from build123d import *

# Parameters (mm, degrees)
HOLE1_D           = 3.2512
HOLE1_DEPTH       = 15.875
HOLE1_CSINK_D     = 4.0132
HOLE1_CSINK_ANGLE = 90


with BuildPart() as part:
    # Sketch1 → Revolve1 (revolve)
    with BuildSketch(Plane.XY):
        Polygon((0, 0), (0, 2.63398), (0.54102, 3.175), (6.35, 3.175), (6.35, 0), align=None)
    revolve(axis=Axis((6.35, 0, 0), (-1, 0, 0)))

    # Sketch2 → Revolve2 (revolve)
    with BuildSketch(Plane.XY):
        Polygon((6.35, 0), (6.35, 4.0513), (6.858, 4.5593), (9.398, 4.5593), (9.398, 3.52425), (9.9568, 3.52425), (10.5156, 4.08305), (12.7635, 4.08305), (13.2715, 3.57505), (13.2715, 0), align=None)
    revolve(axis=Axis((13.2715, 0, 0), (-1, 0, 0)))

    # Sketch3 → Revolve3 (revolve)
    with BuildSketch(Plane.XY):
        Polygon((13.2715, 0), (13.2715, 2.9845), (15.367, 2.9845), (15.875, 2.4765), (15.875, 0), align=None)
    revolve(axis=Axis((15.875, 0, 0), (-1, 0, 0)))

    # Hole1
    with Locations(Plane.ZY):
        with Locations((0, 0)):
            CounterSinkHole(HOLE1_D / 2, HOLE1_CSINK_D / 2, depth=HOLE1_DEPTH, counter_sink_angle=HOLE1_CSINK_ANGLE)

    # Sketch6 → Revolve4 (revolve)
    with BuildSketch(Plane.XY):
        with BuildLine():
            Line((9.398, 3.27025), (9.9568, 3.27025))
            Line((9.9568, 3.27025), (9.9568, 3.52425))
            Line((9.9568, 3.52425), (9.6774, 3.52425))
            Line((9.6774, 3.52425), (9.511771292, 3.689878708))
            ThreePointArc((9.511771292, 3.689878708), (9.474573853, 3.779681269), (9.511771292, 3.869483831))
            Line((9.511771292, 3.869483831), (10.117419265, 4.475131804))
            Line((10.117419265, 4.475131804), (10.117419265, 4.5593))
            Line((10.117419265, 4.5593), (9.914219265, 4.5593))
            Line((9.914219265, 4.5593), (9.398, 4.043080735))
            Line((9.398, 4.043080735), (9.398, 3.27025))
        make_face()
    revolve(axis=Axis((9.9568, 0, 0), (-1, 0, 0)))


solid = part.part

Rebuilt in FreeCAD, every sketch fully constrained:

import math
import FreeCAD as App
import Part
import Sketcher
from FreeCAD import Vector
Q = App.Units.Quantity

doc = App.newDocument("Part")
body = doc.addObject("PartDesign::Body", "Body")

sketch1 = body.newObject("Sketcher::SketchObject", "Sketch")
sketch1.AttachmentSupport = (doc.getObject("XY_Plane"), [""])
sketch1.MapMode = "FlatFace"
sketch1.addGeometry(Part.LineSegment(Vector(0, 2.63398, 0), Vector(0, 0, 0)), False)
sketch1.addGeometry(Part.LineSegment(Vector(0, 0, 0), Vector(6.35, 0, 0)), False)
sketch1.addGeometry(Part.LineSegment(Vector(6.35, 0, 0), Vector(6.35, 3.175, 0)), False)
sketch1.addGeometry(Part.LineSegment(Vector(6.35, 3.175, 0), Vector(0.54102, 3.175, 0)), False)
sketch1.addGeometry(Part.LineSegment(Vector(0.54102, 3.175, 0), Vector(0, 2.63398, 0)), False)
sketch1.addConstraint(Sketcher.Constraint("Coincident", 0, 2, 1, 1))
sketch1.addConstraint(Sketcher.Constraint("Coincident", 1, 2, 2, 1))
sketch1.addConstraint(Sketcher.Constraint("Coincident", 2, 2, 3, 1))
sketch1.addConstraint(Sketcher.Constraint("Coincident", 3, 2, 4, 1))
sketch1.addConstraint(Sketcher.Constraint("Coincident", 4, 2, 0, 1))
sketch1.addConstraint(Sketcher.Constraint("Vertical", 0))
sketch1.addConstraint(Sketcher.Constraint("Horizontal", 1))
sketch1.addConstraint(Sketcher.Constraint("Vertical", 2))
sketch1.addConstraint(Sketcher.Constraint("Horizontal", 3))
sketch1.addConstraint(Sketcher.Constraint("Coincident", 0, 2, -1, 1))
sketch1.addConstraint(Sketcher.Constraint("Angle", 4, Q("-135 deg")))
sketch1.addConstraint(Sketcher.Constraint("DistanceX", 1, 1, 1, 2, Q("0.25 in")))
sketch1.addConstraint(Sketcher.Constraint("DistanceY", 2, 1, 2, 2, Q("0.125 in")))
sketch1.addConstraint(Sketcher.Constraint("DistanceX", 3, 2, 3, 1, Q("0.2287 in")))
revolution = body.newObject("PartDesign::Revolution", "Revolution")
revolution.Profile = sketch1
revolution.ReferenceAxis = (sketch1, ["H_Axis"])
revolution.Angle = 360

sketch2 = body.newObject("Sketcher::SketchObject", "Sketch001")
sketch2.AttachmentSupport = (doc.getObject("XY_Plane"), [""])
sketch2.MapMode = "FlatFace"
sketch2.addGeometry(Part.LineSegment(Vector(6.35, 4.0513, 0), Vector(6.35, 0, 0)), False)
sketch2.addGeometry(Part.LineSegment(Vector(6.35, 0, 0), Vector(13.2715, 0, 0)), False)
sketch2.addGeometry(Part.LineSegment(Vector(13.2715, 0, 0), Vector(13.2715, 3.57505, 0)), False)
sketch2.addGeometry(Part.LineSegment(Vector(13.2715, 3.57505, 0), Vector(12.7635, 4.08305, 0)), False)
sketch2.addGeometry(Part.LineSegment(Vector(12.7635, 4.08305, 0), Vector(10.5156, 4.08305, 0)), False)
sketch2.addGeometry(Part.LineSegment(Vector(10.5156, 4.08305, 0), Vector(9.9568, 3.52425, 0)), False)
sketch2.addGeometry(Part.LineSegment(Vector(9.9568, 3.52425, 0), Vector(9.398, 3.52425, 0)), False)
sketch2.addGeometry(Part.LineSegment(Vector(9.398, 3.52425, 0), Vector(9.398, 4.5593, 0)), False)
sketch2.addGeometry(Part.LineSegment(Vector(9.398, 4.5593, 0), Vector(6.858, 4.5593, 0)), False)
sketch2.addGeometry(Part.LineSegment(Vector(6.858, 4.5593, 0), Vector(6.35, 4.0513, 0)), False)
sketch2.addConstraint(Sketcher.Constraint("Coincident", 0, 2, 1, 1))
sketch2.addConstraint(Sketcher.Constraint("Coincident", 1, 2, 2, 1))
sketch2.addConstraint(Sketcher.Constraint("Coincident", 2, 2, 3, 1))
sketch2.addConstraint(Sketcher.Constraint("Coincident", 3, 2, 4, 1))
sketch2.addConstraint(Sketcher.Constraint("Coincident", 4, 2, 5, 1))
sketch2.addConstraint(Sketcher.Constraint("Coincident", 5, 2, 6, 1))
sketch2.addConstraint(Sketcher.Constraint("Coincident", 6, 2, 7, 1))
sketch2.addConstraint(Sketcher.Constraint("Coincident", 7, 2, 8, 1))
sketch2.addConstraint(Sketcher.Constraint("Coincident", 8, 2, 9, 1))
sketch2.addConstraint(Sketcher.Constraint("Coincident", 9, 2, 0, 1))
sketch2.addConstraint(Sketcher.Constraint("Vertical", 0))
sketch2.addConstraint(Sketcher.Constraint("Horizontal", 1))
sketch2.addConstraint(Sketcher.Constraint("Vertical", 2))
sketch2.addConstraint(Sketcher.Constraint("Horizontal", 4))
sketch2.addConstraint(Sketcher.Constraint("Horizontal", 6))
sketch2.addConstraint(Sketcher.Constraint("Vertical", 7))
sketch2.addConstraint(Sketcher.Constraint("Horizontal", 8))
sketch2.addConstraint(Sketcher.Constraint("PointOnObject", 0, 2, -1))
sketch2.addConstraint(Sketcher.Constraint("Perpendicular", 3, 5))
sketch2.addConstraint(Sketcher.Constraint("Parallel", 5, 9))
sketch2.addConstraint(Sketcher.Constraint("Equal", 3, 9))
sketch2.addConstraint(Sketcher.Constraint("DistanceX", 8, 2, 8, 1, Q("0.1 in")))
sketch2.addConstraint(Sketcher.Constraint("Angle", 3, Q("135 deg")))
sketch2.addConstraint(Sketcher.Constraint("DistanceX", 6, 2, 6, 1, Q("0.022 in")))
sketch2.addConstraint(Sketcher.Constraint("DistanceX", -1, 1, 0, 2, Q("0.25 in")))
sketch2.addConstraint(Sketcher.Constraint("DistanceX", -1, 1, 6, 2, Q("0.37 in")))
sketch2.addConstraint(Sketcher.Constraint("DistanceX", 1, 1, 1, 2, Q("0.2725 in")))
sketch2.addConstraint(Sketcher.Constraint("DistanceX", 4, 2, 4, 1, Q("0.0885 in")))
sketch2.addConstraint(Sketcher.Constraint("DistanceY", 0, 2, 0, 1, Q("0.1595 in")))
sketch2.addConstraint(Sketcher.Constraint("DistanceY", 2, 1, 2, 2, 3.57505))
revolution2 = body.newObject("PartDesign::Revolution", "Revolution001")
revolution2.Profile = sketch2
revolution2.ReferenceAxis = (sketch2, ["H_Axis"])
revolution2.Angle = 360

sketch3 = body.newObject("Sketcher::SketchObject", "Sketch002")
sketch3.AttachmentSupport = (doc.getObject("XY_Plane"), [""])
sketch3.MapMode = "FlatFace"
sketch3.addGeometry(Part.LineSegment(Vector(13.2715, 2.9845, 0), Vector(13.2715, 0, 0)), False)
sketch3.addGeometry(Part.LineSegment(Vector(13.2715, 0, 0), Vector(15.875, 0, 0)), False)
sketch3.addGeometry(Part.LineSegment(Vector(15.875, 0, 0), Vector(15.875, 2.4765, 0)), False)
sketch3.addGeometry(Part.LineSegment(Vector(15.875, 2.4765, 0), Vector(15.367, 2.9845, 0)), False)
sketch3.addGeometry(Part.LineSegment(Vector(15.367, 2.9845, 0), Vector(13.2715, 2.9845, 0)), False)
sketch3.addConstraint(Sketcher.Constraint("Coincident", 0, 2, 1, 1))
sketch3.addConstraint(Sketcher.Constraint("Coincident", 1, 2, 2, 1))
sketch3.addConstraint(Sketcher.Constraint("Coincident", 2, 2, 3, 1))
sketch3.addConstraint(Sketcher.Constraint("Coincident", 3, 2, 4, 1))
sketch3.addConstraint(Sketcher.Constraint("Coincident", 4, 2, 0, 1))
sketch3.addConstraint(Sketcher.Constraint("Vertical", 0))
sketch3.addConstraint(Sketcher.Constraint("Horizontal", 1))
sketch3.addConstraint(Sketcher.Constraint("Vertical", 2))
sketch3.addConstraint(Sketcher.Constraint("Horizontal", 4))
sketch3.addConstraint(Sketcher.Constraint("PointOnObject", 0, 2, -1))
sketch3.addConstraint(Sketcher.Constraint("Angle", 3, Q("135 deg")))
sketch3.addConstraint(Sketcher.Constraint("DistanceX", 3, 2, 2, 2, Q("0.02 in")))
sketch3.addConstraint(Sketcher.Constraint("DistanceX", 1, 1, 1, 2, Q("0.1025 in")))
sketch3.addConstraint(Sketcher.Constraint("DistanceY", 0, 2, 0, 1, Q("0.1175 in")))
sketch3.addConstraint(Sketcher.Constraint("DistanceX", -1, 1, 1, 2, Q("0.625 in")))
revolution3 = body.newObject("PartDesign::Revolution", "Revolution002")
revolution3.Profile = sketch3
revolution3.ReferenceAxis = (sketch3, ["H_Axis"])
revolution3.Angle = 360

sketch4 = body.newObject("Sketcher::SketchObject", "Sketch003")
sketch4.AttachmentSupport = (doc.getObject("YZ_Plane"), [""])
sketch4.MapMode = "FlatFace"
sketch4.addGeometry(Part.Circle(Vector(0, 0, 0), Vector(0, 0, 1), 1.6256), False)
sketch4.addConstraint(Sketcher.Constraint("Coincident", 0, 3, -1, 1))
sketch4.addConstraint(Sketcher.Constraint("Diameter", 0, Q("0.128 in")))
doc.recompute()
hole = body.newObject("PartDesign::Hole", "Hole")
hole.Profile = sketch4
hole.ThreadType = "None"
hole.Diameter = Q("0.128 in")
hole.DepthType = "Dimension"
hole.Depth = Q("0.625 in")
hole.DrillPoint = "Flat"
hole.HoleCutType = "Countersink"
hole.HoleCutDiameter = Q("0.158 in")
hole.HoleCutCountersinkAngle = 90
hole.Reversed = True

sketch5 = body.newObject("Sketcher::SketchObject", "Sketch004")
sketch5.AttachmentSupport = (doc.getObject("XY_Plane"), [""])
sketch5.MapMode = "FlatFace"
sketch5.addGeometry(Part.LineSegment(Vector(9.398, 3.27025, 0), Vector(9.9568, 3.27025, 0)), False)
sketch5.addGeometry(Part.LineSegment(Vector(9.9568, 3.27025, 0), Vector(9.9568, 3.52425, 0)), False)
sketch5.addGeometry(Part.LineSegment(Vector(9.9568, 3.52425, 0), Vector(9.6774, 3.52425, 0)), False)
sketch5.addGeometry(Part.LineSegment(Vector(9.6774, 3.52425, 0), Vector(9.511771, 3.689879, 0)), False)
sketch5.addGeometry(Part.ArcOfCircle(Part.Circle(Vector(9.601574, 3.779681, 0), Vector(0, 0, 1), 0.127), math.radians(135), math.radians(225)), False)
sketch5.addGeometry(Part.LineSegment(Vector(9.511771, 3.869484, 0), Vector(10.117419, 4.475132, 0)), False)
sketch5.addGeometry(Part.LineSegment(Vector(10.117419, 4.475132, 0), Vector(10.117419, 4.5593, 0)), False)
sketch5.addGeometry(Part.LineSegment(Vector(10.117419, 4.5593, 0), Vector(9.914219, 4.5593, 0)), False)
sketch5.addGeometry(Part.LineSegment(Vector(9.914219, 4.5593, 0), Vector(9.398, 4.043081, 0)), False)
sketch5.addGeometry(Part.LineSegment(Vector(9.398, 4.043081, 0), Vector(9.398, 3.27025, 0)), False)
sketch5.addConstraint(Sketcher.Constraint("Coincident", 0, 2, 1, 1))
sketch5.addConstraint(Sketcher.Constraint("Coincident", 1, 2, 2, 1))
sketch5.addConstraint(Sketcher.Constraint("Coincident", 2, 2, 3, 1))
sketch5.addConstraint(Sketcher.Constraint("Tangent", 3, 2, 4, 2))
sketch5.addConstraint(Sketcher.Constraint("Tangent", 4, 1, 5, 1))
sketch5.addConstraint(Sketcher.Constraint("Coincident", 5, 2, 6, 1))
sketch5.addConstraint(Sketcher.Constraint("Coincident", 6, 2, 7, 1))
sketch5.addConstraint(Sketcher.Constraint("Coincident", 7, 2, 8, 1))
sketch5.addConstraint(Sketcher.Constraint("Coincident", 8, 2, 9, 1))
sketch5.addConstraint(Sketcher.Constraint("Coincident", 9, 2, 0, 1))
sketch5.addConstraint(Sketcher.Constraint("Horizontal", 0))
sketch5.addConstraint(Sketcher.Constraint("Vertical", 1))
sketch5.addConstraint(Sketcher.Constraint("Horizontal", 2))
sketch5.addConstraint(Sketcher.Constraint("Vertical", 6))
sketch5.addConstraint(Sketcher.Constraint("Horizontal", 7))
sketch5.addConstraint(Sketcher.Constraint("Vertical", 9))
sketch5.addConstraint(Sketcher.Constraint("Perpendicular", 3, 5))
sketch5.addConstraint(Sketcher.Constraint("Parallel", 5, 8))
sketch5.addConstraint(Sketcher.Constraint("Vertical", 3, 2, 4, 1))
sketch5.addConstraint(Sketcher.Constraint("Radius", 4, Q("0.005 in")))
sketch5.addConstraint(Sketcher.Constraint("DistanceY", 1, 1, 1, 2, Q("0.01 in")))
sketch5.addConstraint(Sketcher.Constraint("DistanceX", 0, 1, 0, 2, Q("0.022 in")))
sketch5.addConstraint(Sketcher.Constraint("DistanceX", 2, 2, 2, 1, Q("0.011 in")))
sketch5.addConstraint(Sketcher.Constraint("DistanceX", 7, 2, 7, 1, Q("0.008 in")))
sketch5.addConstraint(Sketcher.Constraint("DistanceX", -1, 1, 8, 2, Q("0.37 in")))
sketch5.addConstraint(Sketcher.Constraint("DistanceY", -1, 1, 6, 2, Q("0.1795 in")))
sketch5.addConstraint(Sketcher.Constraint("DistanceY", 6, 1, 6, 2, 0.084168))
sketch5.addConstraint(Sketcher.Constraint("DistanceY", 9, 2, 9, 1, 0.772831))
sketch5.addConstraint(Sketcher.Constraint("DistanceY", -1, 1, 4, 3, 3.779681))
revolution4 = body.newObject("PartDesign::Revolution", "Revolution003")
revolution4.Profile = sketch5
revolution4.ReferenceAxis = (sketch5, ["H_Axis"])
revolution4.Angle = 360

doc.recompute()
